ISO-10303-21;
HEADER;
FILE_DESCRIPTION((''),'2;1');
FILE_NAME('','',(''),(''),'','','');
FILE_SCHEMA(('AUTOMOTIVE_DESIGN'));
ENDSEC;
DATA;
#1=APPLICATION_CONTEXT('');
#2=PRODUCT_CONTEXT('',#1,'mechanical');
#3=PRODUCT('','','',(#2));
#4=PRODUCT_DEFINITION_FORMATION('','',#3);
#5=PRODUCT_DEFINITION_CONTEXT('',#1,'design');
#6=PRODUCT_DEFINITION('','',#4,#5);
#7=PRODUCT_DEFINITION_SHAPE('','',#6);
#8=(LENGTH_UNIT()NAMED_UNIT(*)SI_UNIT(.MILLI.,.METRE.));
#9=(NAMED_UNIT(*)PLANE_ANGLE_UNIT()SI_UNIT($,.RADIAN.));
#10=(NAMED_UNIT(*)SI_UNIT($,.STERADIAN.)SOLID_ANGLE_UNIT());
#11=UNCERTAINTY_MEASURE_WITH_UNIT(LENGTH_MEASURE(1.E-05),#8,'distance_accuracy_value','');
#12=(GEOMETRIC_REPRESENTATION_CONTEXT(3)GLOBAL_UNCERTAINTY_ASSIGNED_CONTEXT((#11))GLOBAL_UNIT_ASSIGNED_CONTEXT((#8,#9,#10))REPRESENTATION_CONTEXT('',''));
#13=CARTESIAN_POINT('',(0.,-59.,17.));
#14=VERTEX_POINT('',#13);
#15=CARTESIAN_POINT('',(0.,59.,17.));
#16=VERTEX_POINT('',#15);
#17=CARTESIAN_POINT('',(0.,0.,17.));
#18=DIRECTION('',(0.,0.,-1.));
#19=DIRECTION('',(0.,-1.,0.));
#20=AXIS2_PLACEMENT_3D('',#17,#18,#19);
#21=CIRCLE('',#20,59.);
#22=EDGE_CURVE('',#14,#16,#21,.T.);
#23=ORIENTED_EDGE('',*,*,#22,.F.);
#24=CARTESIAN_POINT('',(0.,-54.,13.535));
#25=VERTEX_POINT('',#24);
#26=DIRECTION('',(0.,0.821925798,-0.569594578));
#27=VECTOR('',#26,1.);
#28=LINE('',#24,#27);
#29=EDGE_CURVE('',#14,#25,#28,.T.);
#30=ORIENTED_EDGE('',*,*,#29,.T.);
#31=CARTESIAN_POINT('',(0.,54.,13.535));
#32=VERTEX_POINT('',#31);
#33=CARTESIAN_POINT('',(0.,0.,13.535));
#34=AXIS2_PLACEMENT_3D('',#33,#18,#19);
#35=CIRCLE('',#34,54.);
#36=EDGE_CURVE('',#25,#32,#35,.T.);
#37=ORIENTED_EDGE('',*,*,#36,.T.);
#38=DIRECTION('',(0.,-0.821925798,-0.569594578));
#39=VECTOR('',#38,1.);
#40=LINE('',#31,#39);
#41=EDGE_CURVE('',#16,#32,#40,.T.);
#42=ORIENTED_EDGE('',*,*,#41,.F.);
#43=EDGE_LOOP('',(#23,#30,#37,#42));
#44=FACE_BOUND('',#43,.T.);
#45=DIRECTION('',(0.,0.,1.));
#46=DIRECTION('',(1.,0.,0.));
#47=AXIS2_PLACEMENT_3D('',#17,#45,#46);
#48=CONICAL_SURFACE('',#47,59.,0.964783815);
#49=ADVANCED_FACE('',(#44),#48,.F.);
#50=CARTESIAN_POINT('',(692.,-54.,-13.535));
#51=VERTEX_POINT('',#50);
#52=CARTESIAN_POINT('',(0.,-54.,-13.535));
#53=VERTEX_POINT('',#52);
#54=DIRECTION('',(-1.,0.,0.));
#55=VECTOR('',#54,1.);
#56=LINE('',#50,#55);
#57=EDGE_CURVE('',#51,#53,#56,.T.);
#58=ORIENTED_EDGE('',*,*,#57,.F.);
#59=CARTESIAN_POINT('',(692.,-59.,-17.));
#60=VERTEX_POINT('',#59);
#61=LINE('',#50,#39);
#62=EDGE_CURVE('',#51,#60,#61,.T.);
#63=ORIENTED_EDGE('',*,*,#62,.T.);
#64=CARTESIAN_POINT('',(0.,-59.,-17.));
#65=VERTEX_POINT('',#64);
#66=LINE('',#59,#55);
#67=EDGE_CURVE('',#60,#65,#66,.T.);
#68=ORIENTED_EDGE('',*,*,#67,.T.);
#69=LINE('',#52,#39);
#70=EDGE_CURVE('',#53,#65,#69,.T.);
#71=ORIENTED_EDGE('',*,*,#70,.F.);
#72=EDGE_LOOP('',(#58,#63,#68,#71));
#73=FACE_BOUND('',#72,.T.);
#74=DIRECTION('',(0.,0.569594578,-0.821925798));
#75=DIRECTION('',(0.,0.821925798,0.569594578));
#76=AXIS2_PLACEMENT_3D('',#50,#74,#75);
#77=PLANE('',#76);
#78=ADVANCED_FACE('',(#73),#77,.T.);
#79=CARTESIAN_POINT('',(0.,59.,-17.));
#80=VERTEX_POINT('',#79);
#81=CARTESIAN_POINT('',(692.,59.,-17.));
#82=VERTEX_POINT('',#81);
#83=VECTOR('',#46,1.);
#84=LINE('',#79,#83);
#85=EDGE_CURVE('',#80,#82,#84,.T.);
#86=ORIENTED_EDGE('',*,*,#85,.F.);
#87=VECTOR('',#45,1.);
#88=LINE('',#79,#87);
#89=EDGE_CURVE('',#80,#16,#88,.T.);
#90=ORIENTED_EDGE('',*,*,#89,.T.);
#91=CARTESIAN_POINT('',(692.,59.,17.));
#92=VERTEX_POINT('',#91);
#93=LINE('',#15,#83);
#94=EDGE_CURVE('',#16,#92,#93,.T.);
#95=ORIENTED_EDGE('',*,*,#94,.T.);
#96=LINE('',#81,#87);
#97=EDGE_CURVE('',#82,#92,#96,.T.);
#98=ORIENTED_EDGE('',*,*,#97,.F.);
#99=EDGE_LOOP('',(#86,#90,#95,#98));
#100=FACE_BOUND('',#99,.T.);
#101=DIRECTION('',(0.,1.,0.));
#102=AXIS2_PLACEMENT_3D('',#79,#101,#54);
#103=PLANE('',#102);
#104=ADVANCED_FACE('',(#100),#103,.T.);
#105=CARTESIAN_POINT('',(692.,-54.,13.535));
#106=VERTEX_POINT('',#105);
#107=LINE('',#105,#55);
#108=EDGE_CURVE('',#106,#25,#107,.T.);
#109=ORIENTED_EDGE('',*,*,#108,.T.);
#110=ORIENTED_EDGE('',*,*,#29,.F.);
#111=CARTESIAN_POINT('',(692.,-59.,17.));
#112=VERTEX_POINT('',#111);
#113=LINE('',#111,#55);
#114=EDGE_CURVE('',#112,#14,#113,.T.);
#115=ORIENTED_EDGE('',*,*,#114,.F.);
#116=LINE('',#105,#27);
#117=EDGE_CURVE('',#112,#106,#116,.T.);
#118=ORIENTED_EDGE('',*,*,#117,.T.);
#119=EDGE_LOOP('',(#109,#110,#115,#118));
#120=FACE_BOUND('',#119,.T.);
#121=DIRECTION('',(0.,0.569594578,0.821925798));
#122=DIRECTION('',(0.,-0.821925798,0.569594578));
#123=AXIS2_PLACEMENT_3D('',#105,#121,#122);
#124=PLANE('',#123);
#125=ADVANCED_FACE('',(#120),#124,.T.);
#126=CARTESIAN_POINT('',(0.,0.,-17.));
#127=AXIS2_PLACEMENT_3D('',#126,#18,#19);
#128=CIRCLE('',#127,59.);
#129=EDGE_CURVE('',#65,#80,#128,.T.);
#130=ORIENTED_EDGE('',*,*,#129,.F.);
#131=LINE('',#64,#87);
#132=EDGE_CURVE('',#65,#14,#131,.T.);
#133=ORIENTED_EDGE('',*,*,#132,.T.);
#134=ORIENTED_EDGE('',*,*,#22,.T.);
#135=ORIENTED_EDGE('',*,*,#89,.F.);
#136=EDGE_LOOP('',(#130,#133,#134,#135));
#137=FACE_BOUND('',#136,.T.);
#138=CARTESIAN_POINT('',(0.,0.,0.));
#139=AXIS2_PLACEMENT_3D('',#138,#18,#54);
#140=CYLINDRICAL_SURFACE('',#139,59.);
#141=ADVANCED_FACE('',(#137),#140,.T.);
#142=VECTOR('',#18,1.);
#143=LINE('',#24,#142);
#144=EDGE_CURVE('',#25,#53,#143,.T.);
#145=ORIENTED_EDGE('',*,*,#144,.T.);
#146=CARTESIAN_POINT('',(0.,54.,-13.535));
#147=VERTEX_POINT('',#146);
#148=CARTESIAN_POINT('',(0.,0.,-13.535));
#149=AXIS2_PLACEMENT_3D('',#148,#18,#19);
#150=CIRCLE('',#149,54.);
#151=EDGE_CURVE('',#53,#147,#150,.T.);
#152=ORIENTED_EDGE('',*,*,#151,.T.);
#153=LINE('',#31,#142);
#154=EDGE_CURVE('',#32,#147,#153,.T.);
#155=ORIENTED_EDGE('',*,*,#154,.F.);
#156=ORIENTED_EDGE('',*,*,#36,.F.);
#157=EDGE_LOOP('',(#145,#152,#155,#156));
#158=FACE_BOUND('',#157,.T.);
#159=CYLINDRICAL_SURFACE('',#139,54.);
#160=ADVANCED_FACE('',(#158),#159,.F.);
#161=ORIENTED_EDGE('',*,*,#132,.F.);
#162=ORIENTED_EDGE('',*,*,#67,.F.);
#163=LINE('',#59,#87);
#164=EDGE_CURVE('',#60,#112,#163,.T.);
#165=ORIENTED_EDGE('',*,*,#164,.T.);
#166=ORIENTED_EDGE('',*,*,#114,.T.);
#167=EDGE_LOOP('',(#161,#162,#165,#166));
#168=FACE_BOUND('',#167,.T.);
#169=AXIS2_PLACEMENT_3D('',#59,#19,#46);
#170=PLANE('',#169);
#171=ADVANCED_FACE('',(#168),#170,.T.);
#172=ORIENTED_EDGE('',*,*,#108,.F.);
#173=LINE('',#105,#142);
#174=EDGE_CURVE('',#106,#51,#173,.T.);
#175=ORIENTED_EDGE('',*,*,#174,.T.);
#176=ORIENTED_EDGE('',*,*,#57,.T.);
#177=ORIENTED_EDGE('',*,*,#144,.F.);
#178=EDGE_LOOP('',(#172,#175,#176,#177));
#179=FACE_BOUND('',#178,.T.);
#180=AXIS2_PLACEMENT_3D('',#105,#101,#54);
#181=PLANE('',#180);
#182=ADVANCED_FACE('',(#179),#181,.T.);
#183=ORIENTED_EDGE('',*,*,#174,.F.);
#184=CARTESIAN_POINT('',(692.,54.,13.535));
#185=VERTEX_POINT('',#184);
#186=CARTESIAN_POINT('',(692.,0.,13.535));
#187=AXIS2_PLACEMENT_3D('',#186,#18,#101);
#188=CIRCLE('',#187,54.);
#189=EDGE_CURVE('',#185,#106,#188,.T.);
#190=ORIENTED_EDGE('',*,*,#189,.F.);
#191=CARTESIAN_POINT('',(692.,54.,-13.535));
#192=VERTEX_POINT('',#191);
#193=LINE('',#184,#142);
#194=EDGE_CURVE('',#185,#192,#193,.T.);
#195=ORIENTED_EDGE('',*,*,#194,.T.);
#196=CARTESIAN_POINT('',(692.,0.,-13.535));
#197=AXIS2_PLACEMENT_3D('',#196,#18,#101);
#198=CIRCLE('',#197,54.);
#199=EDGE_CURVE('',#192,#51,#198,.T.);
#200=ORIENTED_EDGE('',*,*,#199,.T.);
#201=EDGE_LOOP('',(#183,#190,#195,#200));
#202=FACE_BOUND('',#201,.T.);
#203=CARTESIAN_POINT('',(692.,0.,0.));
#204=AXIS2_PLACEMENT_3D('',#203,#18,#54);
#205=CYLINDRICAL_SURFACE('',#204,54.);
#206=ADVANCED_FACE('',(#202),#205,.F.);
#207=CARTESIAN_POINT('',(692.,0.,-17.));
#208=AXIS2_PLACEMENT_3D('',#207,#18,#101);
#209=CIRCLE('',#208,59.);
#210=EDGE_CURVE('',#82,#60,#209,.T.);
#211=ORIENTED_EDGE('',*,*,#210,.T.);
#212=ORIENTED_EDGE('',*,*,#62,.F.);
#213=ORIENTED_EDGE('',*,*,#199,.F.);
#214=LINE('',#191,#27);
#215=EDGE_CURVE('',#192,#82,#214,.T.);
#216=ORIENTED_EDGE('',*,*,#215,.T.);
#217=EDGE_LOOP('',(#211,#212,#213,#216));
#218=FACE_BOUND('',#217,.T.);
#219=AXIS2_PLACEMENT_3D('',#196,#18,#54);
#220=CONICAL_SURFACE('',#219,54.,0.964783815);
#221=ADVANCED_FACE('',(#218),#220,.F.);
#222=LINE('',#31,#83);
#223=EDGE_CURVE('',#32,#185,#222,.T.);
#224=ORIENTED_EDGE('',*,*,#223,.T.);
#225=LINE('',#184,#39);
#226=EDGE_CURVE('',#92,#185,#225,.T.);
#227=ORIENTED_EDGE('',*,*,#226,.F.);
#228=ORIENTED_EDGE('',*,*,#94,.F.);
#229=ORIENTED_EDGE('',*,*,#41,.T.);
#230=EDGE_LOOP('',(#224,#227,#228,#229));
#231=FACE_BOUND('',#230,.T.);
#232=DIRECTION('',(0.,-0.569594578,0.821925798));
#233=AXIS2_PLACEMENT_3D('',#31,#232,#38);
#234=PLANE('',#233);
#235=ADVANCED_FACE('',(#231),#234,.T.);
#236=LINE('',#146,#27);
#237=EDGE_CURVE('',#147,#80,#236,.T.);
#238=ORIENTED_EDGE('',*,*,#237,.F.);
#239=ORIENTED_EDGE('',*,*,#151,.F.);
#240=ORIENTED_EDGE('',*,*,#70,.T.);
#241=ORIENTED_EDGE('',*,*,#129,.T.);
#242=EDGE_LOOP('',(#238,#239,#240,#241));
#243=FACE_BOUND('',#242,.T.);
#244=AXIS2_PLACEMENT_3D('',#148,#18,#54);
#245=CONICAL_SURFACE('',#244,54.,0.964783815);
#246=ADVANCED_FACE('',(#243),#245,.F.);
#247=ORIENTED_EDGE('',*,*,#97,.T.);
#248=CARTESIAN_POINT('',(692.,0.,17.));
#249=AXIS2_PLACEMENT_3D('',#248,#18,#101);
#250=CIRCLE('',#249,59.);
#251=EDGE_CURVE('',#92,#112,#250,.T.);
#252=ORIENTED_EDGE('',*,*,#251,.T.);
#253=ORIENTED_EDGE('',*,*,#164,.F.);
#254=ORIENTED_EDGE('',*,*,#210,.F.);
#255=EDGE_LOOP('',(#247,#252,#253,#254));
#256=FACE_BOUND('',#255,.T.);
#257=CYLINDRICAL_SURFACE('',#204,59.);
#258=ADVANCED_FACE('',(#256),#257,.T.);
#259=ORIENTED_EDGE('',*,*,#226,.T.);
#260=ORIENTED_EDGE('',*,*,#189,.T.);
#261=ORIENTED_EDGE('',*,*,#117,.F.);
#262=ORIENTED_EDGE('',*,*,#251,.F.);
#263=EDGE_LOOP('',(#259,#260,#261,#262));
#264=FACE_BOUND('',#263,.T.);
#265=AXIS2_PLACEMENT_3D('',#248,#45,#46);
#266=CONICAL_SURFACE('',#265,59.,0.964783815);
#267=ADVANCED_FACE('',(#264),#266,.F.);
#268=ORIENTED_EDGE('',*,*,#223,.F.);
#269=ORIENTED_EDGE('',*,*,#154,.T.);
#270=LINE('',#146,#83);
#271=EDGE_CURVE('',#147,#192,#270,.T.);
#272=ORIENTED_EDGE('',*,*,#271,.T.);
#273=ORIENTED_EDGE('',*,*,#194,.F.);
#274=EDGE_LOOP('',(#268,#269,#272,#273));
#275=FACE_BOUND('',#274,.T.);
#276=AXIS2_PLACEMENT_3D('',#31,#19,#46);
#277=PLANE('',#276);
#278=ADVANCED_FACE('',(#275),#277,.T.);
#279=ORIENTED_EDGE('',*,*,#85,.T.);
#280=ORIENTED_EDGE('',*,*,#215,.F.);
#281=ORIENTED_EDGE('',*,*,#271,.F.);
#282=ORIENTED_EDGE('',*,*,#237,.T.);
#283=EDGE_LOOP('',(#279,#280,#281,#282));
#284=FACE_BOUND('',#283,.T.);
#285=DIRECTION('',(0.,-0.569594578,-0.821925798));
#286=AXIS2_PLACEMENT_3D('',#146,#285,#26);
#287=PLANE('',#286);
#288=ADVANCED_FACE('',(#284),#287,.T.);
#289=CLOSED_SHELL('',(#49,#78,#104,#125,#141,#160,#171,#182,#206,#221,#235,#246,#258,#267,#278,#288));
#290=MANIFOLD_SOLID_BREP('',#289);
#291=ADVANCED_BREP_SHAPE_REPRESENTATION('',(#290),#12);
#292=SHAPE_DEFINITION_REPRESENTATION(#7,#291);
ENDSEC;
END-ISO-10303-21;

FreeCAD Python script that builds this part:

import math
import FreeCAD as App
import Part
import Sketcher
Q = App.Units.Quantity

doc = App.newDocument("Part")
params = doc.addObject("Spreadsheet::Sheet", "Params")
for row, (alias, value) in enumerate([
    ("sketch1_height", "34 mm"),
    ("sketch1_height2", "27.07 mm"),
    ("sketch2_radius", "54 mm"),
    ("sketch2_width", "692 mm"),
], start=1):
    params.set(f"A{row}", alias)
    params.set(f"B{row}", "=" + value)
    params.setAlias(f"B{row}", alias)

body = doc.addObject("PartDesign::Body", "Body")

sketch1 = body.newObject("Sketcher::SketchObject", "Sketch")
sketch1.AttachmentSupport = (doc.getObject("YZ_Plane"), [""])
sketch1.MapMode = "FlatFace"
sketch1.addGeometry([
    Part.LineSegment(App.Vector(54, 14, 0), App.Vector(54, -14, 0)),
    Part.LineSegment(App.Vector(54, -14, 0), App.Vector(59, -17, 0)),
    Part.LineSegment(App.Vector(59, -17, 0), App.Vector(59, 17, 0)),
    Part.LineSegment(App.Vector(59, 17, 0), App.Vector(54, 14, 0)),
], False)
sketch1.addConstraint([
    Sketcher.Constraint("Coincident", 0, 2, 1, 1),
    Sketcher.Constraint("Coincident", 1, 2, 2, 1),
    Sketcher.Constraint("Coincident", 2, 2, 3, 1),
    Sketcher.Constraint("Coincident", 3, 2, 0, 1),
    Sketcher.Constraint("Vertical", 0),
    Sketcher.Constraint("Vertical", 2),
    Sketcher.Constraint("Equal", 1, 3),
    Sketcher.Constraint("DistanceY", 2, 1, 2, 2, Q("34 mm")),
    Sketcher.Constraint("DistanceX", -1, 1, 0, 2, Q("54 mm")),
    Sketcher.Constraint("DistanceX", -1, 1, 1, 2, Q("59 mm")),
    Sketcher.Constraint("DistanceY", 1, 2, -1, 1, Q("17 mm")),
    Sketcher.Constraint("DistanceY", 0, 2, 0, 1, Q("27.07 mm")),
])
sketch1.setExpression("Constraints[7]", "Params.sketch1_height")
sketch1.setExpression("Constraints[11]", "Params.sketch1_height2")

sketch2 = body.newObject("Sketcher::SketchObject", "Sketch001")
sketch2.AttachmentSupport = (doc.getObject("XY_Plane"), [""])
sketch2.MapMode = "FlatFace"
sketch2.addGeometry([
    Part.LineSegment(App.Vector(692, 54, 0), App.Vector(0, 54, 0)),
    Part.ArcOfCircle(Part.Circle(App.Vector(0, 0, 0), App.Vector(0, 0, 1), 54), math.radians(90), math.radians(270)),
    Part.LineSegment(App.Vector(0, -54, 0), App.Vector(692, -54, 0)),
    Part.ArcOfCircle(Part.Circle(App.Vector(692, 0, 0), App.Vector(0, 0, 1), 54), math.radians(-90), math.radians(90)),
], False)
sketch2.addConstraint([
    Sketcher.Constraint("Tangent", 0, 2, 1, 1),
    Sketcher.Constraint("Tangent", 1, 2, 2, 1),
    Sketcher.Constraint("Tangent", 2, 2, 3, 1),
    Sketcher.Constraint("Tangent", 3, 2, 0, 1),
    Sketcher.Constraint("Horizontal", 0),
    Sketcher.Constraint("Horizontal", 2),
    Sketcher.Constraint("Coincident", 1, 3, -1, 1),
    Sketcher.Constraint("Radius", 1, Q("54 mm")),
    Sketcher.Constraint("DistanceX", 0, 2, 0, 1, Q("692 mm")),
])
sketch2.setExpression("Constraints[7]", "Params.sketch2_radius")
sketch2.setExpression("Constraints[8]", "Params.sketch2_width")
doc.recompute()

additivepipe = body.newObject("PartDesign::AdditivePipe", "AdditivePipe")
additivepipe.Profile = sketch1
additivepipe.Spine = (sketch2, ["Edge1", "Edge2", "Edge3", "Edge4"])

doc.recompute()
